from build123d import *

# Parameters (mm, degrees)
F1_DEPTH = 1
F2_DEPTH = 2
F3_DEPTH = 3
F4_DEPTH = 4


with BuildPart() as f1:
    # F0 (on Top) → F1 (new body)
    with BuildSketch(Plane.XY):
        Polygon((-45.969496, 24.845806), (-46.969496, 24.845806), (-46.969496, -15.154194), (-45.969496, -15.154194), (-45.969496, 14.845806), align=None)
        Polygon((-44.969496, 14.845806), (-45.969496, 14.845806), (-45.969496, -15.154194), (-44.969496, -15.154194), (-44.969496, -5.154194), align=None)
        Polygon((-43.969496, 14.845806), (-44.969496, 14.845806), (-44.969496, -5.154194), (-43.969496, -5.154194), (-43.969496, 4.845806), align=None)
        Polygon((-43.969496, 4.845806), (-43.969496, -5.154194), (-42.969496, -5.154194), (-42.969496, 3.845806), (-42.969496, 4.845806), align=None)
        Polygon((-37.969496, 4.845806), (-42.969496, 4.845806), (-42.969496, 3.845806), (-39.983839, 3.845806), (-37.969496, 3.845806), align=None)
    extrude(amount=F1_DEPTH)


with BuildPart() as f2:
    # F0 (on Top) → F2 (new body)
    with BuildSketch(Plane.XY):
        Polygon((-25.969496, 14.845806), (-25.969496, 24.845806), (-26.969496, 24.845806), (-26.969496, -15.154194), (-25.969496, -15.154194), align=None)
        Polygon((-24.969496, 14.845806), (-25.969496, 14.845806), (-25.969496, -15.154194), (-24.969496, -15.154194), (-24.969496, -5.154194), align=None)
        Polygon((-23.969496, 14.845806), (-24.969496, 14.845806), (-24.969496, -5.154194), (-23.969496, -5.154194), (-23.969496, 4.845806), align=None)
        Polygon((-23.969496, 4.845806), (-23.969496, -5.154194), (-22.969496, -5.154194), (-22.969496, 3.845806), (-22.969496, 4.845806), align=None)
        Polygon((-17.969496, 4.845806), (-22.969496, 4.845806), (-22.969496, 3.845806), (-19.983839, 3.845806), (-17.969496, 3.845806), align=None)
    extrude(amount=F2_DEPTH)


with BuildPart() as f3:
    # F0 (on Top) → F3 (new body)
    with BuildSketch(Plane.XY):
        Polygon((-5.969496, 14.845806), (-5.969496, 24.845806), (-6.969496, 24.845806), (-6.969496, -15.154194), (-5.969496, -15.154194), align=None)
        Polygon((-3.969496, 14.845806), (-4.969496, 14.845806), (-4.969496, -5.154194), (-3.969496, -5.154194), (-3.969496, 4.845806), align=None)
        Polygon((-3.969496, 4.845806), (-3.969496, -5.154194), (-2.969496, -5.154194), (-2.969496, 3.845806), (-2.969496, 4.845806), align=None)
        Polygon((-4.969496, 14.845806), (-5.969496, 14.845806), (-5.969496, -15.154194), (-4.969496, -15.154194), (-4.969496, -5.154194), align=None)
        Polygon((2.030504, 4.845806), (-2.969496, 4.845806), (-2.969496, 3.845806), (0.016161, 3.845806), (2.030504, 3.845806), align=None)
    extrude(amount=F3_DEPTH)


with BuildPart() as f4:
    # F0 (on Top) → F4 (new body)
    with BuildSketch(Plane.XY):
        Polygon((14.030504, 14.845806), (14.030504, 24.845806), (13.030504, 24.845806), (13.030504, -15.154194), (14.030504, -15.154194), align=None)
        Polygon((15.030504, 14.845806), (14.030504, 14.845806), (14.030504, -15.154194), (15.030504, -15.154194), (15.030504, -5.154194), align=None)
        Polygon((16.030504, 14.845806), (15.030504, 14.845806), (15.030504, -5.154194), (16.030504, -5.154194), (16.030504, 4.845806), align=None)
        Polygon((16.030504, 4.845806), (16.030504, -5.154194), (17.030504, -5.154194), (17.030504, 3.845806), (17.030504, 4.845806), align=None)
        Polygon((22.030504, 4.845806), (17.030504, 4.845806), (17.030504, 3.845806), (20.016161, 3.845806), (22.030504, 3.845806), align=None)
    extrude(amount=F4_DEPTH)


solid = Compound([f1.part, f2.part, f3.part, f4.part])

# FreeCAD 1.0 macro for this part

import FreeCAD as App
import Part
import Sketcher

V = App.Vector
Q = App.Units.Quantity


def add_polygon(sketch, points):
    """Adds a closed chain of lines whose ends are joined by coincident constraints."""
    first, n = sketch.GeometryCount, len(points)
    for a, b in zip(points, points[1:] + points[:1]):
        sketch.addGeometry(Part.LineSegment(App.Vector(*a, 0), App.Vector(*b, 0)), False)
    for i in range(n):
        sketch.addConstraint(Sketcher.Constraint("Coincident", first + i, 2, first + (i + 1) % n, 1))

doc = App.newDocument("Part")
body = doc.addObject("PartDesign::Body", "Body")

sketch1 = doc.addObject("Sketcher::SketchObject", "Sketch")
body.addObject(sketch1)
sketch1.AttachmentSupport = (doc.XY_Plane, [""])
sketch1.MapMode = "FlatFace"
add_polygon(sketch1, [(-46, 24.8), (-47, 24.8), (-47, -15.2), (-45, -15.2), (-45, -5.2), (-43, -5.2), (-43, 3.8), (-38, 3.8), (-38, 4.8), (-44, 4.8), (-44, 14.8), (-46, 14.8)])
sketch1.addConstraint([
    Sketcher.Constraint("Horizontal", 0),
    Sketcher.Constraint("Vertical", 1),
    Sketcher.Constraint("Horizontal", 2),
    Sketcher.Constraint("Vertical", 3),
    Sketcher.Constraint("Horizontal", 4),
    Sketcher.Constraint("Vertical", 5),
    Sketcher.Constraint("Horizontal", 6),
    Sketcher.Constraint("Vertical", 7),
    Sketcher.Constraint("Horizontal", 8),
    Sketcher.Constraint("Vertical", 9),
    Sketcher.Constraint("Horizontal", 10),
    Sketcher.Constraint("Vertical", 11),
    Sketcher.Constraint("Equal", 2, 4),
    Sketcher.Constraint("Equal", 4, 10),
    Sketcher.Constraint("Equal", 0, 7),
    Sketcher.Constraint("Equal", 3, 9),
    Sketcher.Constraint("Equal", 9, 11),
    Sketcher.Constraint("DistanceX", 0, 2, 0, 1, Q("1 mm")),
    Sketcher.Constraint("DistanceX", 2, 1, 2, 2, Q("2 mm")),
    Sketcher.Constraint("DistanceX", 6, 1, 6, 2, Q("5 mm")),
    Sketcher.Constraint("DistanceY", 1, 2, 1, 1, Q("40 mm")),
    Sketcher.Constraint("DistanceY", 3, 1, 3, 2, Q("10 mm")),
    Sketcher.Constraint("DistanceX", 0, 2, -1, 1, Q("46.969496 mm")),
    Sketcher.Constraint("DistanceY", -1, 1, 0, 2, Q("24.845806 mm")),
])
pad1 = doc.addObject("PartDesign::Pad", "Pad")
body.addObject(pad1)
pad1.Profile = sketch1
pad1.Length = 1
body2 = doc.addObject("PartDesign::Body", "Body001")

sketch2 = doc.addObject("Sketcher::SketchObject", "Sketch001")
body2.addObject(sketch2)
sketch2.AttachmentSupport = (doc.getObject("XY_Plane001"), [""])
sketch2.MapMode = "FlatFace"
add_polygon(sketch2, [(-26, 24.8), (-27, 24.8), (-27, -15.2), (-25, -15.2), (-25, -5.2), (-23, -5.2), (-23, 3.8), (-18, 3.8), (-18, 4.8), (-24, 4.8), (-24, 14.8), (-26, 14.8)])
sketch2.addConstraint([
    Sketcher.Constraint("Horizontal", 0),
    Sketcher.Constraint("Vertical", 1),
    Sketcher.Constraint("Horizontal", 2),
    Sketcher.Constraint("Vertical", 3),
    Sketcher.Constraint("Horizontal", 4),
    Sketcher.Constraint("Vertical", 5),
    Sketcher.Constraint("Horizontal", 6),
    Sketcher.Constraint("Vertical", 7),
    Sketcher.Constraint("Horizontal", 8),
    Sketcher.Constraint("Vertical", 9),
    Sketcher.Constraint("Horizontal", 10),
    Sketcher.Constraint("Vertical", 11),
    Sketcher.Constraint("Equal", 2, 4),
    Sketcher.Constraint("Equal", 4, 10),
    Sketcher.Constraint("Equal", 0, 7),
    Sketcher.Constraint("Equal", 3, 9),
    Sketcher.Constraint("Equal", 9, 11),
    Sketcher.Constraint("DistanceX", 0, 2, 0, 1, Q("1 mm")),
    Sketcher.Constraint("DistanceX", 2, 1, 2, 2, Q("2 mm")),
    Sketcher.Constraint("DistanceX", 6, 1, 6, 2, Q("5 mm")),
    Sketcher.Constraint("DistanceY", 1, 2, 1, 1, Q("40 mm")),
    Sketcher.Constraint("DistanceY", 3, 1, 3, 2, Q("10 mm")),
    Sketcher.Constraint("DistanceX", 0, 2, -1, 1, Q("26.969496 mm")),
    Sketcher.Constraint("DistanceY", -1, 1, 0, 2, Q("24.845806 mm")),
])
pad2 = doc.addObject("PartDesign::Pad", "Pad001")
body2.addObject(pad2)
pad2.Profile = sketch2
pad2.Length = 2
body3 = doc.addObject("PartDesign::Body", "Body002")

sketch3 = doc.addObject("Sketcher::SketchObject", "Sketch002")
body3.addObject(sketch3)
sketch3.AttachmentSupport = (doc.getObject("XY_Plane002"), [""])
sketch3.MapMode = "FlatFace"
add_polygon(sketch3, [(-6, 24.8), (-7, 24.8), (-7, -15.2), (-5, -15.2), (-5, -5.2), (-3, -5.2), (-3, 3.8), (2, 3.8), (2, 4.8), (-4, 4.8), (-4, 14.8), (-6, 14.8)])
sketch3.addConstraint([
    Sketcher.Constraint("Horizontal", 0),
    Sketcher.Constraint("Vertical", 1),
    Sketcher.Constraint("Horizontal", 2),
    Sketcher.Constraint("Vertical", 3),
    Sketcher.Constraint("Horizontal", 4),
    Sketcher.Constraint("Vertical", 5),
    Sketcher.Constraint("Horizontal", 6),
    Sketcher.Constraint("Vertical", 7),
    Sketcher.Constraint("Horizontal", 8),
    Sketcher.Constraint("Vertical", 9),
    Sketcher.Constraint("Horizontal", 10),
    Sketcher.Constraint("Vertical", 11),
    Sketcher.Constraint("Equal", 2, 4),
    Sketcher.Constraint("Equal", 4, 10),
    Sketcher.Constraint("Equal", 0, 7),
    Sketcher.Constraint("Equal", 3, 9),
    Sketcher.Constraint("Equal", 9, 11),
    Sketcher.Constraint("DistanceX", 0, 2, 0, 1, Q("1 mm")),
    Sketcher.Constraint("DistanceX", 2, 1, 2, 2, Q("2 mm")),
    Sketcher.Constraint("DistanceX", 6, 1, 6, 2, Q("5 mm")),
    Sketcher.Constraint("DistanceY", 1, 2, 1, 1, Q("40 mm")),
    Sketcher.Constraint("DistanceY", 3, 1, 3, 2, Q("10 mm")),
    Sketcher.Constraint("DistanceX", 0, 2, -1, 1, Q("6.969496 mm")),
    Sketcher.Constraint("DistanceY", -1, 1, 0, 2, Q("24.845806 mm")),
])
pad3 = doc.addObject("PartDesign::Pad", "Pad002")
body3.addObject(pad3)
pad3.Profile = sketch3
pad3.Length = 3
body4 = doc.addObject("PartDesign::Body", "Body003")

sketch4 = doc.addObject("Sketcher::SketchObject", "Sketch003")
body4.addObject(sketch4)
sketch4.AttachmentSupport = (doc.getObject("XY_Plane003"), [""])
sketch4.MapMode = "FlatFace"
add_polygon(sketch4, [(14, 24.8), (13, 24.8), (13, -15.2), (15, -15.2), (15, -5.2), (17, -5.2), (17, 3.8), (22, 3.8), (22, 4.8), (16, 4.8), (16, 14.8), (14, 14.8)])
sketch4.addConstraint([
    Sketcher.Constraint("Horizontal", 0),
    Sketcher.Constraint("Vertical", 1),
    Sketcher.Constraint("Horizontal", 2),
    Sketcher.Constraint("Vertical", 3),
    Sketcher.Constraint("Horizontal", 4),
    Sketcher.Constraint("Vertical", 5),
    Sketcher.Constraint("Horizontal", 6),
    Sketcher.Constraint("Vertical", 7),
    Sketcher.Constraint("Horizontal", 8),
    Sketcher.Constraint("Vertical", 9),
    Sketcher.Constraint("Horizontal", 10),
    Sketcher.Constraint("Vertical", 11),
    Sketcher.Constraint("Equal", 2, 4),
    Sketcher.Constraint("Equal", 4, 10),
    Sketcher.Constraint("Equal", 0, 7),
    Sketcher.Constraint("Equal", 3, 9),
    Sketcher.Constraint("Equal", 9, 11),
    Sketcher.Constraint("DistanceX", 0, 2, 0, 1, Q("1 mm")),
    Sketcher.Constraint("DistanceX", 2, 1, 2, 2, Q("2 mm")),
    Sketcher.Constraint("DistanceX", 6, 1, 6, 2, Q("5 mm")),
    Sketcher.Constraint("DistanceY", 1, 2, 1, 1, Q("40 mm")),
    Sketcher.Constraint("DistanceY", 3, 1, 3, 2, Q("10 mm")),
    Sketcher.Constraint("DistanceX", -1, 1, 0, 2, Q("13.030504 mm")),
    Sketcher.Constraint("DistanceY", -1, 1, 0, 2, Q("24.845806 mm")),
])
pad4 = doc.addObject("PartDesign::Pad", "Pad003")
body4.addObject(pad4)
pad4.Profile = sketch4
pad4.Length = 4

doc.recompute()
